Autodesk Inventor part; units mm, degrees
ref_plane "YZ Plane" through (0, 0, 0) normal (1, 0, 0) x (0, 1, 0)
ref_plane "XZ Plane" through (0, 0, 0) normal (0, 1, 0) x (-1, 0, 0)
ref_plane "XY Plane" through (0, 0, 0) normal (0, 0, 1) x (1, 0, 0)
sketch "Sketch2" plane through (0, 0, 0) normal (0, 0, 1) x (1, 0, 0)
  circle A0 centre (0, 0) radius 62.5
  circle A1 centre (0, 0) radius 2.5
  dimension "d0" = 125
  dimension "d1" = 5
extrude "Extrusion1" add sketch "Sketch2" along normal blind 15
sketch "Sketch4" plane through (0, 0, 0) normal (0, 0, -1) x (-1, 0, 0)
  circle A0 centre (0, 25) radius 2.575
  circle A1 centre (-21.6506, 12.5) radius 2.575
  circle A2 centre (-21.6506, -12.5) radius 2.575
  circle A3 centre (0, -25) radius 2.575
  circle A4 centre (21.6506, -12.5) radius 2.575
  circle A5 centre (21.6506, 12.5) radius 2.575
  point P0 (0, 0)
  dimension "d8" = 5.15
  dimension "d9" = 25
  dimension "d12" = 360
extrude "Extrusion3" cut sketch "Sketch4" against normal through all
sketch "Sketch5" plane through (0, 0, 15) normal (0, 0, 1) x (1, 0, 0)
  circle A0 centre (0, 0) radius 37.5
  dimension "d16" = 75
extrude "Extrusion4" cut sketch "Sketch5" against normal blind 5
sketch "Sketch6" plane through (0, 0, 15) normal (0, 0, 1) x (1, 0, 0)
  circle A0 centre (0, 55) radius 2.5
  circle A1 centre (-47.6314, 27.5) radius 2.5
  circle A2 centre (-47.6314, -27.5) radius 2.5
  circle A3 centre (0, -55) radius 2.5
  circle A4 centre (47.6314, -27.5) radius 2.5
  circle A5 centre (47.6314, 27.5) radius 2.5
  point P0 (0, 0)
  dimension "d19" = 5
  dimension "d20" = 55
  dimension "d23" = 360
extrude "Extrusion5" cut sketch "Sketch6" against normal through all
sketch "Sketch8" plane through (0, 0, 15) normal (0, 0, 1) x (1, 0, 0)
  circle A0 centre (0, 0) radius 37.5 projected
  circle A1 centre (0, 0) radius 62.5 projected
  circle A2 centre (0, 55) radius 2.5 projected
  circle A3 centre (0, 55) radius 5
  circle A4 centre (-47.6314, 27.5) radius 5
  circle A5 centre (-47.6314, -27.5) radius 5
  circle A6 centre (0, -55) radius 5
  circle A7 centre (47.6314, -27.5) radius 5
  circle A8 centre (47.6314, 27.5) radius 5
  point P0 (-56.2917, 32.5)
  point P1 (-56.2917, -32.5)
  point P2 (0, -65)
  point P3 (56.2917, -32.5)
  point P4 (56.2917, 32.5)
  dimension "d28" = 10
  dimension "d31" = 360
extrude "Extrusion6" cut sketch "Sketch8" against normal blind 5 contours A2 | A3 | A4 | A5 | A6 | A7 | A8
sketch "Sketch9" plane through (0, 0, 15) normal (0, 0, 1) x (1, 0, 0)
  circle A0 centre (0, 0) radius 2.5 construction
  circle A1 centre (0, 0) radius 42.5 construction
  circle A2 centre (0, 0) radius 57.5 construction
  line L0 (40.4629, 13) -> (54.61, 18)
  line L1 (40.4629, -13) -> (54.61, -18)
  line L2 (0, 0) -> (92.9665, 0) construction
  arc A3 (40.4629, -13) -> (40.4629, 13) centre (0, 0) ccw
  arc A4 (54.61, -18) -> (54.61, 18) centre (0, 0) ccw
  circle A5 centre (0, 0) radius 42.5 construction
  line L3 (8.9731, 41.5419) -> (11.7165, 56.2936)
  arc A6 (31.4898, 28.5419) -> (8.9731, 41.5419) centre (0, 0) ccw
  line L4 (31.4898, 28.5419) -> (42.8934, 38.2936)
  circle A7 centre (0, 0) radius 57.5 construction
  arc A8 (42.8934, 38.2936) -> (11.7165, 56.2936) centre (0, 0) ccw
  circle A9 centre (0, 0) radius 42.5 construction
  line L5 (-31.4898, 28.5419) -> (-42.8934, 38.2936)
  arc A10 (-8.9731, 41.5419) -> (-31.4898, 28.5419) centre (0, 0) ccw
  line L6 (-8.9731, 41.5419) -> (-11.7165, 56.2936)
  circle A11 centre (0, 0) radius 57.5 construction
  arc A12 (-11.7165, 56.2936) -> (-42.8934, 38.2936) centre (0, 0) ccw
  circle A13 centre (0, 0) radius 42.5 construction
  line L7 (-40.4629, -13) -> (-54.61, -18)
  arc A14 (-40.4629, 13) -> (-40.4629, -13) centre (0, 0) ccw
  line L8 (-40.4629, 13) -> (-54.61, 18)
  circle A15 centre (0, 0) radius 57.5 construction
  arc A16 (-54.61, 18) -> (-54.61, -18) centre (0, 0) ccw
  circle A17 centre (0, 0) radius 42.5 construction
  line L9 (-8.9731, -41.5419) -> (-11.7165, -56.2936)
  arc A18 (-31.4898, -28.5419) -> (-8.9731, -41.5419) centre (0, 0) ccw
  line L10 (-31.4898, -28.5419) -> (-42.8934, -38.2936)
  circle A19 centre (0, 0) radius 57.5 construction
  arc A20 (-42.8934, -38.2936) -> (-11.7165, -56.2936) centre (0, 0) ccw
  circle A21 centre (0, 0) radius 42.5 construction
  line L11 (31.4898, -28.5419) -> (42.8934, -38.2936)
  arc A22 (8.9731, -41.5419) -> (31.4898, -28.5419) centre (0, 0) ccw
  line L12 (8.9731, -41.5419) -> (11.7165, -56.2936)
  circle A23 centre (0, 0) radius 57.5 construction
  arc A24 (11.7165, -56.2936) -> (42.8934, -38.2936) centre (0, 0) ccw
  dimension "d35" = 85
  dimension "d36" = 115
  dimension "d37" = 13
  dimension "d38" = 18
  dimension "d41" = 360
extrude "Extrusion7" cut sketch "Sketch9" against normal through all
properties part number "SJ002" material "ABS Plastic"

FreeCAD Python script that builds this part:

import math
import FreeCAD as App
import Part
import Sketcher

doc = App.newDocument("Part")
params = doc.addObject("Spreadsheet::Sheet", "Params")
for row, (alias, value) in enumerate([
    ("sketch1_diameter", "125 mm"),
    ("sketch1_diameter2", "5 mm"),
    ("pad1_length", "15 mm"),
    ("sketch2_diameter", "5.15 mm"),
    ("sketch3_diameter", "75 mm"),
    ("pocket2_length", "5 mm"),
    ("sketch4_diameter", "5 mm"),
    ("sketch5_diameter", "10 mm"),
    ("pocket4_length", "5 mm"),
    ("sketch6_radius", "42.5 mm"),
    ("sketch6_radius2", "57.5 mm"),
], start=1):
    params.set(f"A{row}", alias)
    params.set(f"B{row}", "=" + value)
    params.setAlias(f"B{row}", alias)

body = doc.addObject("PartDesign::Body", "Body")

# Sketch on XY plane
sketch1 = doc.addObject("Sketcher::SketchObject", "Sketch")
body.addObject(sketch1)
sketch1.AttachmentSupport = (doc.XY_Plane, [""])
sketch1.MapMode = "FlatFace"
sketch1.addGeometry(Part.Circle(App.Vector(0, 0, 0), App.Vector(0, 0, 1), 62.5), False)
sketch1.addGeometry(Part.Circle(App.Vector(0, 0, 0), App.Vector(0, 0, 1), 2.5), False)
sketch1.addConstraint(Sketcher.Constraint("Coincident", 0, 3, -1, 1))
sketch1.addConstraint(Sketcher.Constraint("Coincident", 1, 3, -1, 1))
sketch1.addConstraint(Sketcher.Constraint("Diameter", 0, 125.0))
sketch1.addConstraint(Sketcher.Constraint("Diameter", 1, 5.0))
sketch1.setExpression("Constraints[2]", "Params.sketch1_diameter")
sketch1.setExpression("Constraints[3]", "Params.sketch1_diameter2")
pad1 = doc.addObject("PartDesign::Pad", "Pad")
body.addObject(pad1)
pad1.Profile = sketch1
pad1.setExpression("Length", "Params.pad1_length")

# Sketch on XY plane
sketch2 = doc.addObject("Sketcher::SketchObject", "Sketch001")
body.addObject(sketch2)
sketch2.AttachmentSupport = (doc.XY_Plane, [""])
sketch2.MapMode = "FlatFace"
sketch2.addGeometry(Part.Circle(App.Vector(0, 25, 0), App.Vector(0, 0, 1), 2.575), False)
sketch2.addGeometry(Part.Circle(App.Vector(21.6506, 12.5, 0), App.Vector(0, 0, 1), 2.575), False)
sketch2.addGeometry(Part.Circle(App.Vector(21.6506, -12.5, 0), App.Vector(0, 0, 1), 2.575), False)
sketch2.addGeometry(Part.Circle(App.Vector(0, -25, 0), App.Vector(0, 0, 1), 2.575), False)
sketch2.addGeometry(Part.Circle(App.Vector(-21.6506, -12.5, 0), App.Vector(0, 0, 1), 2.575), False)
sketch2.addGeometry(Part.Circle(App.Vector(-21.6506, 12.5, 0), App.Vector(0, 0, 1), 2.575), False)
sketch2.addConstraint(Sketcher.Constraint("Equal", 0, 1))
sketch2.addConstraint(Sketcher.Constraint("Equal", 1, 2))
sketch2.addConstraint(Sketcher.Constraint("Equal", 2, 3))
sketch2.addConstraint(Sketcher.Constraint("Equal", 3, 4))
sketch2.addConstraint(Sketcher.Constraint("Equal", 4, 5))
sketch2.addConstraint(Sketcher.Constraint("Symmetric", 0, 3, 3, 3, -1, 1))
sketch2.addConstraint(Sketcher.Constraint("Symmetric", 1, 3, 4, 3, -1, 1))
sketch2.addConstraint(Sketcher.Constraint("Symmetric", 2, 3, 5, 3, -1, 1))
sketch2.addConstraint(Sketcher.Constraint("Symmetric", 2, 3, 4, 3, -2))
sketch2.addConstraint(Sketcher.Constraint("PointOnObject", 0, 3, -2))
sketch2.addConstraint(Sketcher.Constraint("Diameter", 0, 5.15))
sketch2.addConstraint(Sketcher.Constraint("DistanceY", -1, 1, 0, 3, 25.0))
sketch2.addConstraint(Sketcher.Constraint("DistanceY", 2, 3, 1, 3, 25.0))
sketch2.addConstraint(Sketcher.Constraint("DistanceX", -1, 1, 1, 3, 21.6506))
sketch2.setExpression("Constraints[10]", "Params.sketch2_diameter")
pocket1 = doc.addObject("PartDesign::Pocket", "Pocket")
body.addObject(pocket1)
pocket1.Profile = sketch2
pocket1.Type = "ThroughAll"
pocket1.Reversed = True

# Sketch on XY plane
sketch3 = doc.addObject("Sketcher::SketchObject", "Sketch002")
body.addObject(sketch3)
sketch3.AttachmentSupport = (doc.XY_Plane, [""])
sketch3.MapMode = "FlatFace"
sketch3.AttachmentOffset = App.Placement(App.Vector(0, 0, 15), App.Rotation())
sketch3.addGeometry(Part.Circle(App.Vector(0, 0, 0), App.Vector(0, 0, 1), 37.5), False)
sketch3.addConstraint(Sketcher.Constraint("Coincident", 0, 3, -1, 1))
sketch3.addConstraint(Sketcher.Constraint("Diameter", 0, 75.0))
sketch3.setExpression("Constraints[1]", "Params.sketch3_diameter")
pocket2 = doc.addObject("PartDesign::Pocket", "Pocket001")
body.addObject(pocket2)
pocket2.Profile = sketch3
pocket2.setExpression("Length", "Params.pocket2_length")

# Sketch on XY plane
sketch4 = doc.addObject("Sketcher::SketchObject", "Sketch003")
body.addObject(sketch4)
sketch4.AttachmentSupport = (doc.XY_Plane, [""])
sketch4.MapMode = "FlatFace"
sketch4.AttachmentOffset = App.Placement(App.Vector(0, 0, 15), App.Rotation())
sketch4.addGeometry(Part.Circle(App.Vector(0, 55, 0), App.Vector(0, 0, 1), 2.5), False)
sketch4.addGeometry(Part.Circle(App.Vector(-47.6314, 27.5, 0), App.Vector(0, 0, 1), 2.5), False)
sketch4.addGeometry(Part.Circle(App.Vector(-47.6314, -27.5, 0), App.Vector(0, 0, 1), 2.5), False)
sketch4.addGeometry(Part.Circle(App.Vector(0, -55, 0), App.Vector(0, 0, 1), 2.5), False)
sketch4.addGeometry(Part.Circle(App.Vector(47.6314, -27.5, 0), App.Vector(0, 0, 1), 2.5), False)
sketch4.addGeometry(Part.Circle(App.Vector(47.6314, 27.5, 0), App.Vector(0, 0, 1), 2.5), False)
sketch4.addConstraint(Sketcher.Constraint("Equal", 0, 1))
sketch4.addConstraint(Sketcher.Constraint("Equal", 1, 2))
sketch4.addConstraint(Sketcher.Constraint("Equal", 2, 3))
sketch4.addConstraint(Sketcher.Constraint("Equal", 3, 4))
sketch4.addConstraint(Sketcher.Constraint("Equal", 4, 5))
sketch4.addConstraint(Sketcher.Constraint("Symmetric", 0, 3, 3, 3, -1, 1))
sketch4.addConstraint(Sketcher.Constraint("Symmetric", 1, 3, 4, 3, -1, 1))
sketch4.addConstraint(Sketcher.Constraint("Symmetric", 2, 3, 5, 3, -1, 1))
sketch4.addConstraint(Sketcher.Constraint("Symmetric", 2, 3, 4, 3, -2))
sketch4.addConstraint(Sketcher.Constraint("PointOnObject", 0, 3, -2))
sketch4.addConstraint(Sketcher.Constraint("Diameter", 0, 5.0))
sketch4.addConstraint(Sketcher.Constraint("DistanceY", -1, 1, 0, 3, 55.0))
sketch4.addConstraint(Sketcher.Constraint("DistanceY", 2, 3, 1, 3, 55.0))
sketch4.addConstraint(Sketcher.Constraint("DistanceX", 1, 3, -1, 1, 47.6314))
sketch4.setExpression("Constraints[10]", "Params.sketch4_diameter")
pocket3 = doc.addObject("PartDesign::Pocket", "Pocket002")
body.addObject(pocket3)
pocket3.Profile = sketch4
pocket3.Type = "ThroughAll"

# Sketch on XY plane
sketch5 = doc.addObject("Sketcher::SketchObject", "Sketch004")
body.addObject(sketch5)
sketch5.AttachmentSupport = (doc.XY_Plane, [""])
sketch5.MapMode = "FlatFace"
sketch5.AttachmentOffset = App.Placement(App.Vector(0, 0, 15), App.Rotation())
sketch5.addGeometry(Part.Circle(App.Vector(0, 55, 0), App.Vector(0, 0, 1), 5), False)
sketch5.addGeometry(Part.Circle(App.Vector(-47.6314, 27.5, 0), App.Vector(0, 0, 1), 5), False)
sketch5.addGeometry(Part.Circle(App.Vector(-47.6314, -27.5, 0), App.Vector(0, 0, 1), 5), False)
sketch5.addGeometry(Part.Circle(App.Vector(0, -55, 0), App.Vector(0, 0, 1), 5), False)
sketch5.addGeometry(Part.Circle(App.Vector(47.6314, -27.5, 0), App.Vector(0, 0, 1), 5), False)
sketch5.addGeometry(Part.Circle(App.Vector(47.6314, 27.5, 0), App.Vector(0, 0, 1), 5), False)
sketch5.addConstraint(Sketcher.Constraint("Equal", 0, 1))
sketch5.addConstraint(Sketcher.Constraint("Equal", 1, 2))
sketch5.addConstraint(Sketcher.Constraint("Equal", 2, 3))
sketch5.addConstraint(Sketcher.Constraint("Equal", 3, 4))
sketch5.addConstraint(Sketcher.Constraint("Equal", 4, 5))
sketch5.addConstraint(Sketcher.Constraint("Symmetric", 0, 3, 3, 3, -1, 1))
sketch5.addConstraint(Sketcher.Constraint("Symmetric", 1, 3, 4, 3, -1, 1))
sketch5.addConstraint(Sketcher.Constraint("Symmetric", 2, 3, 5, 3, -1, 1))
sketch5.addConstraint(Sketcher.Constraint("Symmetric", 2, 3, 4, 3, -2))
sketch5.addConstraint(Sketcher.Constraint("PointOnObject", 0, 3, -2))
sketch5.addConstraint(Sketcher.Constraint("Diameter", 0, 10.0))
sketch5.addConstraint(Sketcher.Constraint("DistanceY", -1, 1, 0, 3, 55.0))
sketch5.addConstraint(Sketcher.Constraint("DistanceY", 2, 3, 1, 3, 55.0))
sketch5.addConstraint(Sketcher.Constraint("DistanceX", 1, 3, -1, 1, 47.6314))
sketch5.setExpression("Constraints[10]", "Params.sketch5_diameter")
pocket4 = doc.addObject("PartDesign::Pocket", "Pocket003")
body.addObject(pocket4)
pocket4.Profile = sketch5
pocket4.setExpression("Length", "Params.pocket4_length")

# Sketch on XY plane
sketch6 = doc.addObject("Sketcher::SketchObject", "Sketch005")
body.addObject(sketch6)
sketch6.AttachmentSupport = (doc.XY_Plane, [""])
sketch6.MapMode = "FlatFace"
sketch6.AttachmentOffset = App.Placement(App.Vector(0, 0, 15), App.Rotation())
sketch6.addGeometry(Part.LineSegment(App.Vector(54.61, 18, 0), App.Vector(40.4629, 13, 0)), False)
sketch6.addGeometry(Part.ArcOfCircle(Part.Circle(App.Vector(0, 0, 0), App.Vector(0, 0, 1), 42.499956), math.radians(-17.811275), math.radians(17.811275)), False)
sketch6.addGeometry(Part.LineSegment(App.Vector(40.4629, -13, 0), App.Vector(54.61, -18, 0)), False)
sketch6.addGeometry(Part.ArcOfCircle(Part.Circle(App.Vector(0, 0, 0), App.Vector(0, 0, 1), 57.500018), math.radians(-18.242735), math.radians(18.242735)), False)
sketch6.addGeometry(Part.LineSegment(App.Vector(11.7165, 56.2936, 0), App.Vector(8.9731, 41.5419, 0)), False)
sketch6.addGeometry(Part.ArcOfCircle(Part.Circle(App.Vector(0, 0, 0), App.Vector(0, 0, 1), 42.499953), math.radians(42.188708), math.radians(77.811301)), False)
sketch6.addGeometry(Part.LineSegment(App.Vector(31.4898, 28.5419, 0), App.Vector(42.8934, 38.2936, 0)), False)
sketch6.addGeometry(Part.ArcOfCircle(Part.Circle(App.Vector(0, 0, 0), App.Vector(0, 0, 1), 57.500018), math.radians(41.757268), math.radians(78.242767)), False)
sketch6.addGeometry(Part.LineSegment(App.Vector(-42.8934, 38.2936, 0), App.Vector(-31.4898, 28.5419, 0)), False)
sketch6.addGeometry(Part.ArcOfCircle(Part.Circle(App.Vector(0, 0, 0), App.Vector(0, 0, 1), 42.5), math.radians(102.188699), math.radians(137.811292)), False)
sketch6.addGeometry(Part.LineSegment(App.Vector(-8.9731, 41.5419, 0), App.Vector(-11.7165, 56.2936, 0)), False)
sketch6.addGeometry(Part.ArcOfCircle(Part.Circle(App.Vector(0, 0, 0), App.Vector(0, 0, 1), 57.499944), math.radians(101.757233), math.radians(138.242732)), False)
sketch6.addGeometry(Part.LineSegment(App.Vector(-54.61, -18, 0), App.Vector(-40.4629, -13, 0)), False)
sketch6.addGeometry(Part.ArcOfCircle(Part.Circle(App.Vector(0, 0, 0), App.Vector(0, 0, 1), 42.499956), math.radians(162.188725), math.radians(197.811275)), False)
sketch6.addGeometry(Part.LineSegment(App.Vector(-40.4629, 13, 0), App.Vector(-54.61, 18, 0)), False)
sketch6.addGeometry(Part.ArcOfCircle(Part.Circle(App.Vector(0, 0, 0), App.Vector(0, 0, 1), 57.500018), math.radians(161.757265), math.radians(198.242735)), False)
sketch6.addGeometry(Part.LineSegment(App.Vector(-11.7165, -56.2936, 0), App.Vector(-8.9731, -41.5419, 0)), False)
sketch6.addGeometry(Part.ArcOfCircle(Part.Circle(App.Vector(0, 0, 0), App.Vector(0, 0, 1), 42.499953), math.radians(-137.811292), math.radians(-102.188699)), False)
sketch6.addGeometry(Part.LineSegment(App.Vector(-31.4898, -28.5419, 0), App.Vector(-42.8934, -38.2936, 0)), False)
sketch6.addGeometry(Part.ArcOfCircle(Part.Circle(App.Vector(0, 0, 0), App.Vector(0, 0, 1), 57.500018), math.radians(-138.242732), math.radians(-101.757233)), False)
sketch6.addGeometry(Part.LineSegment(App.Vector(42.8934, -38.2936, 0), App.Vector(31.4898, -28.5419, 0)), False)
sketch6.addGeometry(Part.ArcOfCircle(Part.Circle(App.Vector(0, 0, 0), App.Vector(0, 0, 1), 42.5), math.radians(-77.811301), math.radians(-42.188708)), False)
sketch6.addGeometry(Part.LineSegment(App.Vector(8.9731, -41.5419, 0), App.Vector(11.7165, -56.2936, 0)), False)
sketch6.addGeometry(Part.ArcOfCircle(Part.Circle(App.Vector(0, 0, 0), App.Vector(0, 0, 1), 57.499944), math.radians(-78.242767), math.radians(-41.757268)), False)
sketch6.addConstraint(Sketcher.Constraint("Coincident", 0, 2, 1, 2))
sketch6.addConstraint(Sketcher.Constraint("Coincident", 1, 1, 2, 1))
sketch6.addConstraint(Sketcher.Constraint("Coincident", 2, 2, 3, 1))
sketch6.addConstraint(Sketcher.Constraint("Coincident", 3, 2, 0, 1))
sketch6.addConstraint(Sketcher.Constraint("Coincident", 4, 2, 5, 2))
sketch6.addConstraint(Sketcher.Constraint("Coincident", 5, 1, 6, 1))
sketch6.addConstraint(Sketcher.Constraint("Coincident", 6, 2, 7, 1))
sketch6.addConstraint(Sketcher.Constraint("Coincident", 7, 2, 4, 1))
sketch6.addConstraint(Sketcher.Constraint("Coincident", 8, 2, 9, 2))
sketch6.addConstraint(Sketcher.Constraint("Coincident", 9, 1, 10, 1))
sketch6.addConstraint(Sketcher.Constraint("Coincident", 10, 2, 11, 1))
sketch6.addConstraint(Sketcher.Constraint("Coincident", 11, 2, 8, 1))
sketch6.addConstraint(Sketcher.Constraint("Coincident", 12, 2, 13, 2))
sketch6.addConstraint(Sketcher.Constraint("Coincident", 13, 1, 14, 1))
sketch6.addConstraint(Sketcher.Constraint("Coincident", 14, 2, 15, 1))
sketch6.addConstraint(Sketcher.Constraint("Coincident", 15, 2, 12, 1))
sketch6.addConstraint(Sketcher.Constraint("Coincident", 16, 2, 17, 2))
sketch6.addConstraint(Sketcher.Constraint("Coincident", 17, 1, 18, 1))
sketch6.addConstraint(Sketcher.Constraint("Coincident", 18, 2, 19, 1))
sketch6.addConstraint(Sketcher.Constraint("Coincident", 19, 2, 16, 1))
sketch6.addConstraint(Sketcher.Constraint("Coincident", 20, 2, 21, 2))
sketch6.addConstraint(Sketcher.Constraint("Coincident", 21, 1, 22, 1))
sketch6.addConstraint(Sketcher.Constraint("Coincident", 22, 2, 23, 1))
sketch6.addConstraint(Sketcher.Constraint("Coincident", 23, 2, 20, 1))
sketch6.addConstraint(Sketcher.Constraint("Coincident", 1, 3, -1, 1))
sketch6.addConstraint(Sketcher.Constraint("Coincident", 3, 3, -1, 1))
sketch6.addConstraint(Sketcher.Constraint("Coincident", 5, 3, -1, 1))
sketch6.addConstraint(Sketcher.Constraint("Coincident", 7, 3, -1, 1))
sketch6.addConstraint(Sketcher.Constraint("Coincident", 9, 3, -1, 1))
sketch6.addConstraint(Sketcher.Constraint("Coincident", 11, 3, -1, 1))
sketch6.addConstraint(Sketcher.Constraint("Coincident", 13, 3, -1, 1))
sketch6.addConstraint(Sketcher.Constraint("Coincident", 15, 3, -1, 1))
sketch6.addConstraint(Sketcher.Constraint("Coincident", 17, 3, -1, 1))
sketch6.addConstraint(Sketcher.Constraint("Coincident", 19, 3, -1, 1))
sketch6.addConstraint(Sketcher.Constraint("Coincident", 21, 3, -1, 1))
sketch6.addConstraint(Sketcher.Constraint("Coincident", 23, 3, -1, 1))
sketch6.addConstraint(Sketcher.Constraint("Equal", 1, 5))
sketch6.addConstraint(Sketcher.Constraint("Equal", 3, 7))
sketch6.addConstraint(Sketcher.Constraint("Equal", 5, 9))
sketch6.addConstraint(Sketcher.Constraint("Equal", 7, 11))
sketch6.addConstraint(Sketcher.Constraint("Equal", 9, 13))
sketch6.addConstraint(Sketcher.Constraint("Equal", 11, 15))
sketch6.addConstraint(Sketcher.Constraint("Equal", 13, 17))
sketch6.addConstraint(Sketcher.Constraint("Equal", 15, 19))
sketch6.addConstraint(Sketcher.Constraint("Equal", 17, 21))
sketch6.addConstraint(Sketcher.Constraint("Equal", 19, 23))
sketch6.addConstraint(Sketcher.Constraint("Parallel", 0, 12))
sketch6.addConstraint(Sketcher.Constraint("Parallel", 2, 14))
sketch6.addConstraint(Sketcher.Constraint("Parallel", 4, 16))
sketch6.addConstraint(Sketcher.Constraint("Parallel", 6, 18))
sketch6.addConstraint(Sketcher.Constraint("Parallel", 8, 20))
sketch6.addConstraint(Sketcher.Constraint("Parallel", 10, 22))
sketch6.addConstraint(Sketcher.Constraint("Horizontal", 5, 1, 8, 2))
sketch6.addConstraint(Sketcher.Constraint("Horizontal", 4, 2, 9, 1))
sketch6.addConstraint(Sketcher.Constraint("Horizontal", 7, 2, 10, 2))
sketch6.addConstraint(Sketcher.Constraint("Horizontal", 6, 2, 11, 2))
sketch6.addConstraint(Sketcher.Constraint("Horizontal", 1, 1, 12, 2))
sketch6.addConstraint(Sketcher.Constraint("Horizontal", 0, 2, 13, 1))
sketch6.addConstraint(Sketcher.Constraint("Horizontal", 3, 2, 14, 2))
sketch6.addConstraint(Sketcher.Constraint("Horizontal", 17, 1, 20, 2))
sketch6.addConstraint(Sketcher.Constraint("Horizontal", 16, 2, 21, 1))
sketch6.addConstraint(Sketcher.Constraint("Vertical", 0, 2, 1, 1))
sketch6.addConstraint(Sketcher.Constraint("Vertical", 9, 1, 16, 2))
sketch6.addConstraint(Sketcher.Constraint("Vertical", 8, 2, 17, 1))
sketch6.addConstraint(Sketcher.Constraint("Equal", 2, 4))
sketch6.addConstraint(Sketcher.Constraint("Equal", 4, 6))
sketch6.addConstraint(Sketcher.Constraint("Radius", 1, 42.5))
sketch6.addConstraint(Sketcher.Constraint("Radius", 3, 57.5))
sketch6.addConstraint(Sketcher.Constraint("DistanceY", -1, 1, 0, 2, 13.0))
sketch6.addConstraint(Sketcher.Constraint("DistanceY", 2, 2, -1, 1, 18.0))
sketch6.addConstraint(Sketcher.Constraint("DistanceY", 5, 1, 4, 2, 13.0))
sketch6.addConstraint(Sketcher.Constraint("DistanceX", -1, 1, 4, 2, 8.973))
sketch6.setExpression("Constraints[66]", "Params.sketch6_radius")
sketch6.setExpression("Constraints[67]", "Params.sketch6_radius2")
pocket5 = doc.addObject("PartDesign::Pocket", "Pocket004")
body.addObject(pocket5)
pocket5.Profile = sketch6
pocket5.Type = "ThroughAll"

doc.recompute()
